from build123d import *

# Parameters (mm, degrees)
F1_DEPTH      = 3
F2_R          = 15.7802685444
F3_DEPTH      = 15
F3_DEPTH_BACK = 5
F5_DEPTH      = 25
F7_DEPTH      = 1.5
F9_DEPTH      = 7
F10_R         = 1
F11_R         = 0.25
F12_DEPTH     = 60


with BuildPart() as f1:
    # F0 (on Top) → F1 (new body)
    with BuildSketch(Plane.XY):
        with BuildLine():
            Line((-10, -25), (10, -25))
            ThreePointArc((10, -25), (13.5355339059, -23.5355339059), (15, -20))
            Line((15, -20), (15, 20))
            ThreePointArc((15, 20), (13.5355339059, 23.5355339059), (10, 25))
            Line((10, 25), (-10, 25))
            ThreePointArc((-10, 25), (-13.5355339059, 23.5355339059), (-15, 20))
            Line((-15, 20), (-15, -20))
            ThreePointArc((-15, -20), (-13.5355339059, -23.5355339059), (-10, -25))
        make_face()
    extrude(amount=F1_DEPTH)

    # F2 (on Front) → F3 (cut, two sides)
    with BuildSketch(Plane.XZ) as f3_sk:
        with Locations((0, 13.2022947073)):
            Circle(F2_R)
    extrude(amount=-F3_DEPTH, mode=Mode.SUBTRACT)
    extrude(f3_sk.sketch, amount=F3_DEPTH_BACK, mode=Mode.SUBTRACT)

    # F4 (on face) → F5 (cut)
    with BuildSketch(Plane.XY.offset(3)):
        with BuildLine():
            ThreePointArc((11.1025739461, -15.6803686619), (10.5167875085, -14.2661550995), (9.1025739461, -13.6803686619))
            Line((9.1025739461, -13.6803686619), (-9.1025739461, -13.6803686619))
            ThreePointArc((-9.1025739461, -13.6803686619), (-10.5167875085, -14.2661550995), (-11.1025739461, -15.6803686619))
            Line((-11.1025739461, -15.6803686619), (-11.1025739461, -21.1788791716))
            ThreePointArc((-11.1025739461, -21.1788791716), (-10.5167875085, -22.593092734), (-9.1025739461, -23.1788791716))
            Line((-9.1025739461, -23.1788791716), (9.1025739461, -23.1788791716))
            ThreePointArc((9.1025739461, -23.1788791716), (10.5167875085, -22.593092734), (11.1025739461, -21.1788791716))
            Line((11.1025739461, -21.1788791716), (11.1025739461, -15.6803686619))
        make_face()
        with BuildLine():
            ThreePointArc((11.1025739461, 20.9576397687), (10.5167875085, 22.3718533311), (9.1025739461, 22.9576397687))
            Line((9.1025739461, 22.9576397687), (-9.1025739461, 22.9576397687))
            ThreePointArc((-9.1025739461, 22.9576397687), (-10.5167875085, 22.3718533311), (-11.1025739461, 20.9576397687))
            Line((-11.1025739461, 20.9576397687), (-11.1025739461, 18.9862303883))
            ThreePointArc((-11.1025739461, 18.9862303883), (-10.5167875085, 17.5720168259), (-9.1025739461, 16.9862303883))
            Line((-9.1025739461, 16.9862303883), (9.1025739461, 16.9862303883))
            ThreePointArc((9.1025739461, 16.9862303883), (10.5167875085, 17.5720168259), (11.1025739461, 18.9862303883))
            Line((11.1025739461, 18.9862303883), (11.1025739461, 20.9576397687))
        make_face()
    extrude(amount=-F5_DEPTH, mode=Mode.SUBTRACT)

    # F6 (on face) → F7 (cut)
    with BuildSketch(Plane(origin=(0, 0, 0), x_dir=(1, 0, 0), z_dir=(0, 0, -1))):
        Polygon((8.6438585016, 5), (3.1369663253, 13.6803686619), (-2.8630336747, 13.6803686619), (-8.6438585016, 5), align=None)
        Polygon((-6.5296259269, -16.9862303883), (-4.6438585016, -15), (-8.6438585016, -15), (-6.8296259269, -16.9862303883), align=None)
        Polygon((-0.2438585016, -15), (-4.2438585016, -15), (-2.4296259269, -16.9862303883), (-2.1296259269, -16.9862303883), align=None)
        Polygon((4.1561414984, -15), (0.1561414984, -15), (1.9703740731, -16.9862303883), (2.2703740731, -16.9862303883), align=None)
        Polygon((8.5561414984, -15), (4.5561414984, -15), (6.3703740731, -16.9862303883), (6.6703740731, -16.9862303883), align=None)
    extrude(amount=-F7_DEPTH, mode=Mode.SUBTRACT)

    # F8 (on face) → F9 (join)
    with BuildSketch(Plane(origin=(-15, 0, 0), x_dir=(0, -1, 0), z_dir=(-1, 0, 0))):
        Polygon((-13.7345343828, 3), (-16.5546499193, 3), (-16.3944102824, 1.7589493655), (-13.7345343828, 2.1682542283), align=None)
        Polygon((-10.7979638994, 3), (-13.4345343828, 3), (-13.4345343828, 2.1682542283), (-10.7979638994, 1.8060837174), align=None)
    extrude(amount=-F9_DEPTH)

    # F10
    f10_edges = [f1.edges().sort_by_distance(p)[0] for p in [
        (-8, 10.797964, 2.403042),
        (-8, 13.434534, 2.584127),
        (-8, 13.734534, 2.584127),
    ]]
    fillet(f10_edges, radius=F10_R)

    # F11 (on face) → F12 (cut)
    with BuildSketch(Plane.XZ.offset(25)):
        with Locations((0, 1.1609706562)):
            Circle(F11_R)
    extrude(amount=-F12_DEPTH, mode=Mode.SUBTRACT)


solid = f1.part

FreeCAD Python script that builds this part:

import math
import FreeCAD as App
import Part
import Sketcher
Q = App.Units.Quantity


def edges_at(feature, points):
    """Names of the edges that pass closest to the given points."""
    edges = feature.Shape.Edges
    near = lambda p: min(range(len(edges)), key=lambda i: edges[i].distToShape(Part.Vertex(*p))[0])
    return sorted({f"Edge{near(p) + 1}" for p in points})


def add_polygon(sketch, points):
    """Adds a closed chain of lines whose ends are joined by coincident constraints."""
    first, n = sketch.GeometryCount, len(points)
    for a, b in zip(points, points[1:] + points[:1]):
        sketch.addGeometry(Part.LineSegment(App.Vector(*a, 0), App.Vector(*b, 0)), False)
    for i in range(n):
        sketch.addConstraint(Sketcher.Constraint("Coincident", first + i, 2, first + (i + 1) % n, 1))

doc = App.newDocument("Part")
body = doc.addObject("PartDesign::Body", "Body")

sketch1 = doc.addObject("Sketcher::SketchObject", "Sketch")
body.addObject(sketch1)
sketch1.AttachmentSupport = (doc.XY_Plane, [""])
sketch1.MapMode = "FlatFace"
sketch1.addGeometry([
    Part.LineSegment(App.Vector(-10, -25, 0), App.Vector(10, -25, 0)),
    Part.ArcOfCircle(Part.Circle(App.Vector(10, -20, 0), App.Vector(0, 0, 1), 5), math.radians(-90), math.radians(0)),
    Part.LineSegment(App.Vector(15, -20, 0), App.Vector(15, 20, 0)),
    Part.ArcOfCircle(Part.Circle(App.Vector(10, 20, 0), App.Vector(0, 0, 1), 5), math.radians(0), math.radians(90)),
    Part.LineSegment(App.Vector(10, 25, 0), App.Vector(-10, 25, 0)),
    Part.ArcOfCircle(Part.Circle(App.Vector(-10, 20, 0), App.Vector(0, 0, 1), 5), math.radians(90), math.radians(180)),
    Part.LineSegment(App.Vector(-15, 20, 0), App.Vector(-15, -20, 0)),
    Part.ArcOfCircle(Part.Circle(App.Vector(-10, -20, 0), App.Vector(0, 0, 1), 5), math.radians(180), math.radians(270)),
], False)
sketch1.addConstraint([
    Sketcher.Constraint("Tangent", 0, 2, 1, 1),
    Sketcher.Constraint("Tangent", 1, 2, 2, 1),
    Sketcher.Constraint("Tangent", 2, 2, 3, 1),
    Sketcher.Constraint("Tangent", 3, 2, 4, 1),
    Sketcher.Constraint("Tangent", 4, 2, 5, 1),
    Sketcher.Constraint("Tangent", 5, 2, 6, 1),
    Sketcher.Constraint("Tangent", 6, 2, 7, 1),
    Sketcher.Constraint("Tangent", 7, 2, 0, 1),
    Sketcher.Constraint("Horizontal", 0),
    Sketcher.Constraint("Vertical", 2),
    Sketcher.Constraint("Horizontal", 4),
    Sketcher.Constraint("Vertical", 6),
    Sketcher.Constraint("Equal", 1, 3),
    Sketcher.Constraint("Equal", 3, 5),
    Sketcher.Constraint("Equal", 5, 7),
    Sketcher.Constraint("Symmetric", 1, 3, 5, 3, -1, 1),
    Sketcher.Constraint("Radius", 1, Q("5 mm")),
    Sketcher.Constraint("DistanceX", 0, 1, 0, 2, Q("20 mm")),
    Sketcher.Constraint("DistanceY", 2, 1, 2, 2, Q("40 mm")),
])
pad1 = doc.addObject("PartDesign::Pad", "Pad")
body.addObject(pad1)
pad1.Profile = sketch1
pad1.Length = 3

sketch2 = doc.addObject("Sketcher::SketchObject", "Sketch001")
body.addObject(sketch2)
sketch2.AttachmentSupport = (doc.XZ_Plane, [""])
sketch2.MapMode = "FlatFace"
sketch2.addGeometry(Part.Circle(App.Vector(0, 13.202295, 0), App.Vector(0, 0, 1), 15.780269), False)
sketch2.addConstraint([
    Sketcher.Constraint("PointOnObject", 0, 3, -2),
    Sketcher.Constraint("Diameter", 0, Q("31.560537 mm")),
    Sketcher.Constraint("DistanceY", -1, 1, 0, 3, Q("13.202295 mm")),
])
pocket1 = doc.addObject("PartDesign::Pocket", "Pocket")
body.addObject(pocket1)
pocket1.Profile = sketch2
pocket1.Type = "TwoLengths"
pocket1.Length = 15
pocket1.Length2 = 5

sketch3 = doc.addObject("Sketcher::SketchObject", "Sketch002")
body.addObject(sketch3)
sketch3.AttachmentSupport = (doc.XY_Plane, [""])
sketch3.MapMode = "FlatFace"
sketch3.AttachmentOffset = App.Placement(App.Vector(0, 0, 3), App.Rotation())
sketch3.addGeometry([
    Part.ArcOfCircle(Part.Circle(App.Vector(9.102574, -15.680369, 0), App.Vector(0, 0, 1), 2), math.radians(0), math.radians(90)),
    Part.LineSegment(App.Vector(9.102574, -13.680369, 0), App.Vector(-9.102574, -13.680369, 0)),
    Part.ArcOfCircle(Part.Circle(App.Vector(-9.102574, -15.680369, 0), App.Vector(0, 0, 1), 2), math.radians(90), math.radians(180)),
    Part.LineSegment(App.Vector(-11.102574, -15.680369, 0), App.Vector(-11.102574, -21.178879, 0)),
    Part.ArcOfCircle(Part.Circle(App.Vector(-9.102574, -21.178879, 0), App.Vector(0, 0, 1), 2), math.radians(180), math.radians(270)),
    Part.LineSegment(App.Vector(-9.102574, -23.178879, 0), App.Vector(9.102574, -23.178879, 0)),
    Part.ArcOfCircle(Part.Circle(App.Vector(9.102574, -21.178879, 0), App.Vector(0, 0, 1), 2), math.radians(-90), math.radians(0)),
    Part.LineSegment(App.Vector(11.102574, -21.178879, 0), App.Vector(11.102574, -15.680369, 0)),
    Part.ArcOfCircle(Part.Circle(App.Vector(9.102574, 20.95764, 0), App.Vector(0, 0, 1), 2), math.radians(0), math.radians(90)),
    Part.LineSegment(App.Vector(9.102574, 22.95764, 0), App.Vector(-9.102574, 22.95764, 0)),
    Part.ArcOfCircle(Part.Circle(App.Vector(-9.102574, 20.95764, 0), App.Vector(0, 0, 1), 2), math.radians(90), math.radians(180)),
    Part.LineSegment(App.Vector(-11.102574, 20.95764, 0), App.Vector(-11.102574, 18.98623, 0)),
    Part.ArcOfCircle(Part.Circle(App.Vector(-9.102574, 18.98623, 0), App.Vector(0, 0, 1), 2), math.radians(180), math.radians(270)),
    Part.LineSegment(App.Vector(-9.102574, 16.98623, 0), App.Vector(9.102574, 16.98623, 0)),
    Part.ArcOfCircle(Part.Circle(App.Vector(9.102574, 18.98623, 0), App.Vector(0, 0, 1), 2), math.radians(-90), math.radians(0)),
    Part.LineSegment(App.Vector(11.102574, 18.98623, 0), App.Vector(11.102574, 20.95764, 0)),
], False)
sketch3.addConstraint([
    Sketcher.Constraint("Tangent", 0, 2, 1, 1),
    Sketcher.Constraint("Tangent", 1, 2, 2, 1),
    Sketcher.Constraint("Tangent", 2, 2, 3, 1),
    Sketcher.Constraint("Tangent", 3, 2, 4, 1),
    Sketcher.Constraint("Tangent", 4, 2, 5, 1),
    Sketcher.Constraint("Tangent", 5, 2, 6, 1),
    Sketcher.Constraint("Tangent", 6, 2, 7, 1),
    Sketcher.Constraint("Tangent", 7, 2, 0, 1),
    Sketcher.Constraint("Tangent", 8, 2, 9, 1),
    Sketcher.Constraint("Tangent", 9, 2, 10, 1),
    Sketcher.Constraint("Tangent", 10, 2, 11, 1),
    Sketcher.Constraint("Tangent", 11, 2, 12, 1),
    Sketcher.Constraint("Tangent", 12, 2, 13, 1),
    Sketcher.Constraint("Tangent", 13, 2, 14, 1),
    Sketcher.Constraint("Tangent", 14, 2, 15, 1),
    Sketcher.Constraint("Tangent", 15, 2, 8, 1),
    Sketcher.Constraint("Horizontal", 1),
    Sketcher.Constraint("Vertical", 3),
    Sketcher.Constraint("Horizontal", 5),
    Sketcher.Constraint("Vertical", 7),
    Sketcher.Constraint("Horizontal", 9),
    Sketcher.Constraint("Vertical", 11),
    Sketcher.Constraint("Horizontal", 13),
    Sketcher.Constraint("Vertical", 15),
    Sketcher.Constraint("Equal", 0, 2),
    Sketcher.Constraint("Equal", 2, 4),
    Sketcher.Constraint("Equal", 4, 6),
    Sketcher.Constraint("Equal", 6, 8),
    Sketcher.Constraint("Equal", 8, 10),
    Sketcher.Constraint("Equal", 10, 12),
    Sketcher.Constraint("Equal", 12, 14),
    Sketcher.Constraint("Vertical", 6, 3, 8, 3),
    Sketcher.Constraint("Vertical", 4, 3, 10, 3),
    Sketcher.Constraint("Radius", 0, Q("2 mm")),
    Sketcher.Constraint("DistanceY", 3, 2, 3, 1, Q("5.498511 mm")),
    Sketcher.Constraint("DistanceY", 11, 2, 11, 1, Q("1.971409 mm")),
    Sketcher.Constraint("DistanceY", 2, 3, 12, 3, Q("34.666599 mm")),
    Sketcher.Constraint("DistanceX", 1, 2, 1, 1, Q("18.205148 mm")),
    Sketcher.Constraint("DistanceY", 0, 3, -1, 1, Q("15.680369 mm")),
    Sketcher.Constraint("DistanceX", -1, 1, 0, 3, Q("9.102574 mm")),
])
pocket2 = doc.addObject("PartDesign::Pocket", "Pocket001")
body.addObject(pocket2)
pocket2.Profile = sketch3
pocket2.Length = 25

sketch4 = doc.addObject("Sketcher::SketchObject", "Sketch003")
body.addObject(sketch4)
sketch4.AttachmentSupport = (doc.XY_Plane, [""])
sketch4.MapMode = "FlatFace"
add_polygon(sketch4, [(8.643859, -5), (3.136966, -13.680369), (-2.863034, -13.680369), (-8.643859, -5)])
add_polygon(sketch4, [(-6.529626, 16.98623), (-4.643859, 15), (-8.643859, 15), (-6.829626, 16.98623)])
add_polygon(sketch4, [(-0.243859, 15), (-4.243859, 15), (-2.429626, 16.98623), (-2.129626, 16.98623)])
add_polygon(sketch4, [(4.156141, 15), (0.156141, 15), (1.970374, 16.98623), (2.270374, 16.98623)])
add_polygon(sketch4, [(8.556141, 15), (4.556141, 15), (6.370374, 16.98623), (6.670374, 16.98623)])
sketch4.addConstraint([
    Sketcher.Constraint("Horizontal", 1),
    Sketcher.Constraint("Horizontal", 3),
    Sketcher.Constraint("Horizontal", 5),
    Sketcher.Constraint("Horizontal", 7),
    Sketcher.Constraint("Horizontal", 8),
    Sketcher.Constraint("Horizontal", 10),
    Sketcher.Constraint("Horizontal", 12),
    Sketcher.Constraint("Horizontal", 14),
    Sketcher.Constraint("Horizontal", 16),
    Sketcher.Constraint("Horizontal", 18),
    Sketcher.Constraint("Parallel", 6, 9),
    Sketcher.Constraint("Parallel", 4, 11),
    Sketcher.Constraint("Parallel", 9, 13),
    Sketcher.Constraint("Parallel", 11, 15),
    Sketcher.Constraint("Parallel", 13, 17),
    Sketcher.Constraint("Parallel", 15, 19),
    Sketcher.Constraint("Horizontal", 5, 2, 8, 2),
    Sketcher.Constraint("Horizontal", 7, 2, 9, 2),
    Sketcher.Constraint("Horizontal", 11, 2, 12, 2),
    Sketcher.Constraint("Horizontal", 10, 2, 13, 2),
    Sketcher.Constraint("Horizontal", 15, 2, 16, 2),
    Sketcher.Constraint("Horizontal", 14, 2, 17, 2),
    Sketcher.Constraint("Vertical", 2, 2, 5, 2),
    Sketcher.Constraint("Equal", 5, 8),
    Sketcher.Constraint("Equal", 8, 12),
    Sketcher.Constraint("Equal", 12, 16),
    Sketcher.Constraint("DistanceX", 1, 2, 1, 1, Q("6 mm")),
    Sketcher.Constraint("DistanceX", 5, 2, 5, 1, Q("4 mm")),
    Sketcher.Constraint("DistanceX", 7, 1, 7, 2, Q("0.3 mm")),
    Sketcher.Constraint("DistanceY", 2, 2, -1, 1, Q("5 mm")),
    Sketcher.Constraint("DistanceY", -1, 1, 4, 2, Q("15 mm")),
    Sketcher.Constraint("DistanceX", 4, 2, 8, 2, Q("0.4 mm")),
    Sketcher.Constraint("DistanceX", 11, 2, 12, 2, Q("0.4 mm")),
    Sketcher.Constraint("DistanceX", 15, 2, 16, 2, Q("0.4 mm")),
    Sketcher.Constraint("DistanceY", 1, 2, 6, 2, Q("30.666599 mm")),
    Sketcher.Constraint("Distance", 0, Q("10.279818 mm")),
    Sketcher.Constraint("Distance", 2, Q("10.429129 mm")),
    Sketcher.Constraint("DistanceX", 3, 1, 3, 2, Q("17.287717 mm")),
    Sketcher.Constraint("DistanceX", 2, 2, -1, 1, Q("8.643859 mm")),
    Sketcher.Constraint("Distance", 4, Q("2.738837 mm")),
])
pocket3 = doc.addObject("PartDesign::Pocket", "Pocket002")
body.addObject(pocket3)
pocket3.Profile = sketch4
pocket3.Length = 1.5
pocket3.Reversed = True

sketch5 = doc.addObject("Sketcher::SketchObject", "Sketch004")
body.addObject(sketch5)
sketch5.AttachmentSupport = (doc.YZ_Plane, [""])
sketch5.MapMode = "FlatFace"
sketch5.AttachmentOffset = App.Placement(App.Vector(0, 0, -15), App.Rotation())
add_polygon(sketch5, [(13.734534, 3), (16.55465, 3), (16.39441, 1.758949), (13.734534, 2.168254)])
add_polygon(sketch5, [(10.797964, 3), (13.434534, 3), (13.434534, 2.168254), (10.797964, 1.806084)])
sketch5.addConstraint([
    Sketcher.Constraint("Horizontal", 0),
    Sketcher.Constraint("Vertical", 3),
    Sketcher.Constraint("Horizontal", 4),
    Sketcher.Constraint("Vertical", 5),
    Sketcher.Constraint("Vertical", 7),
    Sketcher.Constraint("Horizontal", 3, 2, 4, 2),
    Sketcher.Constraint("Horizontal", 2, 2, 5, 2),
    Sketcher.Constraint("DistanceY", -1, 1, 0, 2, Q("3 mm")),
    Sketcher.Constraint("DistanceX", 4, 2, 3, 2, Q("0.3 mm")),
    Sketcher.Constraint("DistanceX", 4, 1, 4, 2, Q("2.63657 mm")),
    Sketcher.Constraint("Distance", 6, Q("2.661329 mm")),
    Sketcher.Constraint("DistanceX", 0, 1, 0, 2, Q("2.820116 mm")),
    Sketcher.Constraint("DistanceY", 3, 1, 3, 2, Q("0.831746 mm")),
    Sketcher.Constraint("DistanceX", -1, 1, 0, 2, Q("16.55465 mm")),
    Sketcher.Constraint("DistanceX", -1, 1, 1, 2, Q("16.39441 mm")),
    Sketcher.Constraint("DistanceY", -1, 1, 1, 2, Q("1.758949 mm")),
])
pad2 = doc.addObject("PartDesign::Pad", "Pad001")
body.addObject(pad2)
pad2.Profile = sketch5
pad2.Length = 7
doc.recompute()

fillet = doc.addObject("PartDesign::Fillet", "Fillet")
body.addObject(fillet)
fillet.Base = (pad2, edges_at(pad2, [(-8, 10.798, 2.403), (-8, 13.435, 2.584), (-8, 13.735, 2.584)]))
fillet.Radius = 1

sketch6 = doc.addObject("Sketcher::SketchObject", "Sketch005")
body.addObject(sketch6)
sketch6.AttachmentSupport = (doc.XZ_Plane, [""])
sketch6.MapMode = "FlatFace"
sketch6.AttachmentOffset = App.Placement(App.Vector(0, 0, 25), App.Rotation())
sketch6.addGeometry(Part.Circle(App.Vector(0, 1.160971, 0), App.Vector(0, 0, 1), 0.25), False)
sketch6.addConstraint([
    Sketcher.Constraint("PointOnObject", 0, 3, -2),
    Sketcher.Constraint("Diameter", 0, Q("0.5 mm")),
    Sketcher.Constraint("DistanceY", -1, 1, 0, 3, Q("1.160971 mm")),
])
pocket4 = doc.addObject("PartDesign::Pocket", "Pocket003")
body.addObject(pocket4)
pocket4.Profile = sketch6
pocket4.Length = 60

doc.recompute()
